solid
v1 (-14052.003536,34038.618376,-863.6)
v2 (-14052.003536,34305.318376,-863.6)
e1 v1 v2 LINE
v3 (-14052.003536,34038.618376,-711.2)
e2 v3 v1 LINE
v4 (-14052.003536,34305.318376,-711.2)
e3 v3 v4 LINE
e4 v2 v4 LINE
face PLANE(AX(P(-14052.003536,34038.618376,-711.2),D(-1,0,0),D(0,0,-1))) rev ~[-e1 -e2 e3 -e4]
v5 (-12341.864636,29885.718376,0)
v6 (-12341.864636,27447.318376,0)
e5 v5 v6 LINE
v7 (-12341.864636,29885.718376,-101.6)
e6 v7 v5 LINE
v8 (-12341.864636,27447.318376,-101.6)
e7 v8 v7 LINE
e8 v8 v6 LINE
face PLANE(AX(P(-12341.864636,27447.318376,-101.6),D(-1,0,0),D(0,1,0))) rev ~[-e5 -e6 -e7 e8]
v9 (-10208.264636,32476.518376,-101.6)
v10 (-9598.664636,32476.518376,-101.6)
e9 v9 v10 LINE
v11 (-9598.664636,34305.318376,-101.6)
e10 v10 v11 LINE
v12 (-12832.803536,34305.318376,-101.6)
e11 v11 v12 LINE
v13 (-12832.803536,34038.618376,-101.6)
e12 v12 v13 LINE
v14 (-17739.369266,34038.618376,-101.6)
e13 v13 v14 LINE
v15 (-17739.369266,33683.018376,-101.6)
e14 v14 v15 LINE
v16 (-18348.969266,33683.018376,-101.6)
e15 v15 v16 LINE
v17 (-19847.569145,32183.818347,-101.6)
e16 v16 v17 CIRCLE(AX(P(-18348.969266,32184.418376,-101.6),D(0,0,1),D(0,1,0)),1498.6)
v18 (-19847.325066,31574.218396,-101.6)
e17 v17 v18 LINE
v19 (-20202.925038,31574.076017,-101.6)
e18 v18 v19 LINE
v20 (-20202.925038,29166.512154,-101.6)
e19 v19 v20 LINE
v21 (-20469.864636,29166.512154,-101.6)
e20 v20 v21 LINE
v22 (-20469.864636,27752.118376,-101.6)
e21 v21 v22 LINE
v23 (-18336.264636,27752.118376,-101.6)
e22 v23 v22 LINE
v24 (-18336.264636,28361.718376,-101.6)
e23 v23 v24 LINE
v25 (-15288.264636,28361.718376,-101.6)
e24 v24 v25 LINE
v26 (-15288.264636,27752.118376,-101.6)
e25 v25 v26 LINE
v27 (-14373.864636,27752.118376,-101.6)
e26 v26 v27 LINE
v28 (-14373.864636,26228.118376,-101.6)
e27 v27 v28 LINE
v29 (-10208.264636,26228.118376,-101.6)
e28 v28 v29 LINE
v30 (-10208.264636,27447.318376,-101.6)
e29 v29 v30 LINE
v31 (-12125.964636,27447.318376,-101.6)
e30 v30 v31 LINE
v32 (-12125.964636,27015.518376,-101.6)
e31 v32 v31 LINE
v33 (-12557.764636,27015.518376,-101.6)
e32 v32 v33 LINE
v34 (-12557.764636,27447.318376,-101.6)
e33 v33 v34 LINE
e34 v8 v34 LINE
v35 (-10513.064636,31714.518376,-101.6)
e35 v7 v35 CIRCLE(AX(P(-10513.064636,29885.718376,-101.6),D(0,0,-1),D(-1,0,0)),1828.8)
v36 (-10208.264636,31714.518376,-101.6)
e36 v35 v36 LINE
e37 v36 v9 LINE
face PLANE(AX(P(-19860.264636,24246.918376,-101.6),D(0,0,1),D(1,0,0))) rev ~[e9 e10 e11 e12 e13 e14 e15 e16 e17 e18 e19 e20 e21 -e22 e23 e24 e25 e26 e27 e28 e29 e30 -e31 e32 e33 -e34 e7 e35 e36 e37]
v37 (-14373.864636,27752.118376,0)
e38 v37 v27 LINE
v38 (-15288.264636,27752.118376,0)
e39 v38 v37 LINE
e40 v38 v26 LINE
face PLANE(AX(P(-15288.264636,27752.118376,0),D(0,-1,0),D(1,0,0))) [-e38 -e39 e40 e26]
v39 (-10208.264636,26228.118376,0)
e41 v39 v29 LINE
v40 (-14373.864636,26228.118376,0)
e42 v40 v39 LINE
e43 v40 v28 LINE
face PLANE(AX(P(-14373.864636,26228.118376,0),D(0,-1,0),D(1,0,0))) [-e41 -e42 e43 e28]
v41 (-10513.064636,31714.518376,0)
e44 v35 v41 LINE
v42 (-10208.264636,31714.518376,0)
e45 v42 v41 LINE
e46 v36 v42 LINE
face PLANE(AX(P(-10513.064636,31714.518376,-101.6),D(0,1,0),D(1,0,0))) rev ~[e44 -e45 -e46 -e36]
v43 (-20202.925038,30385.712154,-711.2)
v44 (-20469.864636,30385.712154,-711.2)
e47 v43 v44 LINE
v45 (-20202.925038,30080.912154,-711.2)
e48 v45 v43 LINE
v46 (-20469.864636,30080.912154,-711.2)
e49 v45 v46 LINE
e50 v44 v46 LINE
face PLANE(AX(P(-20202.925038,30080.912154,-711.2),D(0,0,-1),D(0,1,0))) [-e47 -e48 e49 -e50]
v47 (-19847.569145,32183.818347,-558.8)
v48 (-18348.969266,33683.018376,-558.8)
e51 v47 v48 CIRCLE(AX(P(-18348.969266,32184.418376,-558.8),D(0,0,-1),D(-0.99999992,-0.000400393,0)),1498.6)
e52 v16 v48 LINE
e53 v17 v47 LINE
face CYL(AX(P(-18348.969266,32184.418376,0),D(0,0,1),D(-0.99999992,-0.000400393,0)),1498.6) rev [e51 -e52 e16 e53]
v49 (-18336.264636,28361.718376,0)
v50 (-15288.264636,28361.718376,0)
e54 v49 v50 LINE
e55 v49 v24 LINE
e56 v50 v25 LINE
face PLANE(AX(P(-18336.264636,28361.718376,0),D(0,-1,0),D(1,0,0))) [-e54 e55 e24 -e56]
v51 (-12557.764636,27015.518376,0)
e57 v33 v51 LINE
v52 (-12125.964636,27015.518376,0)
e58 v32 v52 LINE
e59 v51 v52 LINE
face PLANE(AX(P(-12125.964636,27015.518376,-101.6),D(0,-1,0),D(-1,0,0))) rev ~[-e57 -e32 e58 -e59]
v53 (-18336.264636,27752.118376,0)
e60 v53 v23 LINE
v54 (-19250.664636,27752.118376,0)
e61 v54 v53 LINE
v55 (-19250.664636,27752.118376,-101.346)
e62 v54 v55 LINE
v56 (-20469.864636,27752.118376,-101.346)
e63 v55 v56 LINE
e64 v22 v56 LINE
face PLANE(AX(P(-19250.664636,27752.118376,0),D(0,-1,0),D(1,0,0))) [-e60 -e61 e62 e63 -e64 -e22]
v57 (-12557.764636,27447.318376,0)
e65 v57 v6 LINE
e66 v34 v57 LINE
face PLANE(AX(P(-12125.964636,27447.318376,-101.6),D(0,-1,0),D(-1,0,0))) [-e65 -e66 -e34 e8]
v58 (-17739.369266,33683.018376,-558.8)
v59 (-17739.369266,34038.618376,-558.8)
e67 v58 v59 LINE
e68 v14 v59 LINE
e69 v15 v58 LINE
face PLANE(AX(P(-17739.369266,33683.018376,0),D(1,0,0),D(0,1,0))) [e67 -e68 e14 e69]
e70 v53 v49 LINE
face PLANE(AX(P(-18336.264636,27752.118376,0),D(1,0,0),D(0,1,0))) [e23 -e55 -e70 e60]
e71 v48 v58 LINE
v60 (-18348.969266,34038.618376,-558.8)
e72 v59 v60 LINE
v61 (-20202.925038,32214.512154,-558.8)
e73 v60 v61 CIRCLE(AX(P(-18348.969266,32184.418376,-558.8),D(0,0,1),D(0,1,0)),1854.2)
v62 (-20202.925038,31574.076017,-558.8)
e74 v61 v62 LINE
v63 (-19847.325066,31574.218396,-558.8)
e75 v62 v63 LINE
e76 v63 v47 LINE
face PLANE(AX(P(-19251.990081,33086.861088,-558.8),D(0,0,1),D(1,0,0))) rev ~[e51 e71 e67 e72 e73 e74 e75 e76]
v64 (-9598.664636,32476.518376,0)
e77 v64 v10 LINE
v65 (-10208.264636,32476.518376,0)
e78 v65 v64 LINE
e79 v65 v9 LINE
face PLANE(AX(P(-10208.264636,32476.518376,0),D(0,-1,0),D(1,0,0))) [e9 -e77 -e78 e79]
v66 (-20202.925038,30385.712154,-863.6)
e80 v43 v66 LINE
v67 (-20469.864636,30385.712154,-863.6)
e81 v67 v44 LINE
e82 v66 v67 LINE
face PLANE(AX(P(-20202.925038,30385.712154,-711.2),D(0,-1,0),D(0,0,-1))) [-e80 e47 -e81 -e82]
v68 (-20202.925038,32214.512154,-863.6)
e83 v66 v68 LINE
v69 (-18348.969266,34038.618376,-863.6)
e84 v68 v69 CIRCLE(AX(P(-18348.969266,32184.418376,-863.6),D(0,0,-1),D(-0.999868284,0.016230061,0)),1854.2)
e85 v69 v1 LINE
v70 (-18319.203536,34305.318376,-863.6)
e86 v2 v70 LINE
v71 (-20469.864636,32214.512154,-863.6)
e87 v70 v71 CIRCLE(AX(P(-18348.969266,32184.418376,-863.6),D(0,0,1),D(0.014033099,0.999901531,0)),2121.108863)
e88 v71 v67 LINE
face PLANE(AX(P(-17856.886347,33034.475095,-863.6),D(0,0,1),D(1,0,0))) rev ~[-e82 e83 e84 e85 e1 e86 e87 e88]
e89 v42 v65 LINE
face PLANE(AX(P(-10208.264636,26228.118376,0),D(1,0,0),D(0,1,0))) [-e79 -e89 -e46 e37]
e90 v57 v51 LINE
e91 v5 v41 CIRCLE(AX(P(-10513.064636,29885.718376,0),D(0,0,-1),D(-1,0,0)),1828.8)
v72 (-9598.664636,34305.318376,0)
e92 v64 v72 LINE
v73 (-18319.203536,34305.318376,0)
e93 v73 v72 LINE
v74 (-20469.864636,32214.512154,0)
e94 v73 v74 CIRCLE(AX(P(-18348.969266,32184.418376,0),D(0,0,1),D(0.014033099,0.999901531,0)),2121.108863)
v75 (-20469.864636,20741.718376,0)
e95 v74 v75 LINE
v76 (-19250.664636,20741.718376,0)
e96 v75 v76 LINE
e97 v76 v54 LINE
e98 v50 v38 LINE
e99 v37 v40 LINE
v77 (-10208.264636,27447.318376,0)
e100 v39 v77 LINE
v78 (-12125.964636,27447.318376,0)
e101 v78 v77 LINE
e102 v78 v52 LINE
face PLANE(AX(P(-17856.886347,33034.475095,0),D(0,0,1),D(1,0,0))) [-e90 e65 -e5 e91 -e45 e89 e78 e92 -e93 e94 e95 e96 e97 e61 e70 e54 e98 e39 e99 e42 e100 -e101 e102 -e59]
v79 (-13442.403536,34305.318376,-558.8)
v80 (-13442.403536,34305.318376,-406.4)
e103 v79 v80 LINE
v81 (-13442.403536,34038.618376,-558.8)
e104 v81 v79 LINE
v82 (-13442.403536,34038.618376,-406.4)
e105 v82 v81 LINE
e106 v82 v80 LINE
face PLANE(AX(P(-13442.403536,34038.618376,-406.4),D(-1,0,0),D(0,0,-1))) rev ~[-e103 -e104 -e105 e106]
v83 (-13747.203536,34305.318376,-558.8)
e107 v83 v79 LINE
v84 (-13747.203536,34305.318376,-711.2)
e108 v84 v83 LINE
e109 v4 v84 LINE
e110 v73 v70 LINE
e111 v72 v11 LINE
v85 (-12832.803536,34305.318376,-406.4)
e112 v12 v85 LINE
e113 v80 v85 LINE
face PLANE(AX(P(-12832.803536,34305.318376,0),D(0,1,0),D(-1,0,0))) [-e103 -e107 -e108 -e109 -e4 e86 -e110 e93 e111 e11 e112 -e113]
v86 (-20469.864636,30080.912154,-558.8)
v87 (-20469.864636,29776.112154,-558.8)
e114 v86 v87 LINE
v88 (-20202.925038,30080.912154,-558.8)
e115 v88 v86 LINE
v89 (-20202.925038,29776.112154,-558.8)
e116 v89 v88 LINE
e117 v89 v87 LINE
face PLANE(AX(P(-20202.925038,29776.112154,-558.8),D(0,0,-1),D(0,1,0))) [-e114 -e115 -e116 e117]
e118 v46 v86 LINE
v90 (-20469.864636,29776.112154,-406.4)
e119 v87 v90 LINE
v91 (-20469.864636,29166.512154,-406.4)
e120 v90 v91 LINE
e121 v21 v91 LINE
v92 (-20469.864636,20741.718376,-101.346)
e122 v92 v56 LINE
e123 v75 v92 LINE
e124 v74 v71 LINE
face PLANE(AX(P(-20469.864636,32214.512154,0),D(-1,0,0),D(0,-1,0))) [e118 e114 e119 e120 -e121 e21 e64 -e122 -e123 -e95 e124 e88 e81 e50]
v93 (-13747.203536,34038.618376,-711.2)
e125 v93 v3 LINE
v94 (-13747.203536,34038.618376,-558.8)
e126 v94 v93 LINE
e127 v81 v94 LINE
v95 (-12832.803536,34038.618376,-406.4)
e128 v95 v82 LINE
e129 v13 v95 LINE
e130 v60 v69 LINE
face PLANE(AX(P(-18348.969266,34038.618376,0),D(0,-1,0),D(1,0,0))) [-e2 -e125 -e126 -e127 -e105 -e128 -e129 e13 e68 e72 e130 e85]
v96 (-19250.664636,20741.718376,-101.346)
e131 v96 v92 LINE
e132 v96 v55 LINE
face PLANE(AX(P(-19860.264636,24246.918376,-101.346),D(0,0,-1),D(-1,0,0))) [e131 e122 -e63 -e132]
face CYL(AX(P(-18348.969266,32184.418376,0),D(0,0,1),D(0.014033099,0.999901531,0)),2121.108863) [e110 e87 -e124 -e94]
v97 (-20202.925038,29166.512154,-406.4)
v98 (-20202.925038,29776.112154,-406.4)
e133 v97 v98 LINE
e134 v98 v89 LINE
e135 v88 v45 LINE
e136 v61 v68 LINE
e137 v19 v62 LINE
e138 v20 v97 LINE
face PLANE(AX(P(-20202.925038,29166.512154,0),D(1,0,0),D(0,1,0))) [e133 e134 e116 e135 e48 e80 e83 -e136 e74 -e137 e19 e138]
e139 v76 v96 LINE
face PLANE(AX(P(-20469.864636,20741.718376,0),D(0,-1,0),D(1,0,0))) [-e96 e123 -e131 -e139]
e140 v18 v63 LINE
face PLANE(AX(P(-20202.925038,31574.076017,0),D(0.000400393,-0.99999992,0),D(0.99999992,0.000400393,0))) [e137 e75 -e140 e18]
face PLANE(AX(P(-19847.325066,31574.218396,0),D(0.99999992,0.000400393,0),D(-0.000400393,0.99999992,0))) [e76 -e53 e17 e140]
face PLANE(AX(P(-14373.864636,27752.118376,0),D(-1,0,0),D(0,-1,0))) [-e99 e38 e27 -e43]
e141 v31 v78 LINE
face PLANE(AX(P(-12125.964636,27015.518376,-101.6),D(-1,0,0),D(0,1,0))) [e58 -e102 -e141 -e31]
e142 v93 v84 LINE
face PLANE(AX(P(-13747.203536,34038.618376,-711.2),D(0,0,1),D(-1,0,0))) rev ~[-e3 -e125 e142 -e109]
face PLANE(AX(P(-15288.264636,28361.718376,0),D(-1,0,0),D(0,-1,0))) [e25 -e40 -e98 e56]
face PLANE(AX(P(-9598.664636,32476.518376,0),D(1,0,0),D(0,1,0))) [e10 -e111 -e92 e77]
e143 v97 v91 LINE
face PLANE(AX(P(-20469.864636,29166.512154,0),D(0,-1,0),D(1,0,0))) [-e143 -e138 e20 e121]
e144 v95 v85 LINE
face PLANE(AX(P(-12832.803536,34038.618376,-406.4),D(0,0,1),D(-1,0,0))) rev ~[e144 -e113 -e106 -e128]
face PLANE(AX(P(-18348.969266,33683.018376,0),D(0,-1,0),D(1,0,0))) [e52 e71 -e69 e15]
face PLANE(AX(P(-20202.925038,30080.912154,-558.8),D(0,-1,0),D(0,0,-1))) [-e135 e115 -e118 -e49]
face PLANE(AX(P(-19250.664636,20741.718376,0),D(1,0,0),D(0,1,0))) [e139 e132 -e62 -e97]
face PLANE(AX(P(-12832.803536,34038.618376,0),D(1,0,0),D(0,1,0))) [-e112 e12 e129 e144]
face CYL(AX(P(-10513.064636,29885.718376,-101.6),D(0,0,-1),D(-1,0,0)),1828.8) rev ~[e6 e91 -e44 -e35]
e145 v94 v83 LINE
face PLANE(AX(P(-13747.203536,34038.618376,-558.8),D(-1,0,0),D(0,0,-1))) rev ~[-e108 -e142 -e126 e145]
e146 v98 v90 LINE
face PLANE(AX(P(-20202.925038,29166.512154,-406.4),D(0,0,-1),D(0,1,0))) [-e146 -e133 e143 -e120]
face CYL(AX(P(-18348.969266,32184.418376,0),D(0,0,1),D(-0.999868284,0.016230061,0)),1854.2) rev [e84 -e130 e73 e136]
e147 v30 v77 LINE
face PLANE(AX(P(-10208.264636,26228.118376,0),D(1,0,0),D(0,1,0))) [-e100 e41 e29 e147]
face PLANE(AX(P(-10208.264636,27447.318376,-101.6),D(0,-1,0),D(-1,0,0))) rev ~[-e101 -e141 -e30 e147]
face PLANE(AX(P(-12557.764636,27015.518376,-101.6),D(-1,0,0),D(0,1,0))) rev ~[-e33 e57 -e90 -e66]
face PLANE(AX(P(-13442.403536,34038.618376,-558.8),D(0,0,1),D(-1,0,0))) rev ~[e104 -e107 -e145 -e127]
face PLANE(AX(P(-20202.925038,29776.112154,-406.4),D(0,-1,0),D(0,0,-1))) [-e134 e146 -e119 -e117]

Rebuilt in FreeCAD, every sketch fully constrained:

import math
import FreeCAD as App
import Part
import Sketcher
Q = App.Units.Quantity

doc = App.newDocument("Part")
params = doc.addObject("Spreadsheet::Sheet", "Params")
for row, (alias, value) in enumerate([
    ("sketch1_radius", "59 in"),
    ("sketch1_width", "48 in"),
    ("sketch1_width2", "36 in"),
    ("sketch1_width3", "120 in"),
    ("sketch1_width4", "164 in"),
    ("pad1_length", "4 in"),
    ("sketch2_radius", "59 in"),
    ("sketch2_radius2", "73 in"),
    ("sketch2_width", "24 in"),
    ("sketch2_length", "14 in"),
    ("sketch2_length2", "24 in"),
    ("pad2_length", "22 in"),
    ("sketch3_radius", "73 in"),
    ("sketch3_width", "216 in"),
    ("sketch3_height", "120 in"),
    ("sketch3_height2", "10.5 in"),
    ("pad3_length", "34 in"),
    ("sketch4_width", "12 in"),
    ("sketch4_width2", "48 in"),
    ("sketch4_height", "6 in"),
    ("sketch5_width", "48 in"),
    ("sketch5_width2", "12 in"),
    ("sketch5_height", "18 in"),
    ("sketch6_radius", "72 in"),
    ("sketch6_width", "84 in"),
    ("sketch6_height", "96 in"),
    ("sketch7_width", "17 in"),
    ("sketch8_width", "48 in"),
    ("sketch8_height", "276 in"),
    ("pocket5_length", "0.01 in"),
], start=1):
    params.set(f"A{row}", alias)
    params.set(f"B{row}", "=" + value)
    params.setAlias(f"B{row}", alias)

body = doc.addObject("PartDesign::Body", "Body")

# Sketch on XY plane
sketch1 = body.newObject("Sketcher::SketchObject", "Sketch")
sketch1.AttachmentSupport = (doc.getObject("XY_Plane"), [""])
sketch1.MapMode = "FlatFace"
sketch1.addGeometry(Part.LineSegment(App.Vector(-20470, 20742, 0), App.Vector(-19251, 20742, 0)), False)
sketch1.addGeometry(Part.LineSegment(App.Vector(-19251, 20742, 0), App.Vector(-19251, 27752, 0)), False)
sketch1.addGeometry(Part.LineSegment(App.Vector(-19251, 27752, 0), App.Vector(-18336, 27752, 0)), False)
sketch1.addGeometry(Part.LineSegment(App.Vector(-18336, 27752, 0), App.Vector(-18336, 28362, 0)), False)
sketch1.addGeometry(Part.LineSegment(App.Vector(-18336, 28362, 0), App.Vector(-15288, 28362, 0)), False)
sketch1.addGeometry(Part.LineSegment(App.Vector(-15288, 28362, 0), App.Vector(-15288, 27752, 0)), False)
sketch1.addGeometry(Part.LineSegment(App.Vector(-15288, 27752, 0), App.Vector(-14374, 27752, 0)), False)
sketch1.addGeometry(Part.LineSegment(App.Vector(-14374, 27752, 0), App.Vector(-14374, 26228, 0)), False)
sketch1.addGeometry(Part.LineSegment(App.Vector(-14374, 26228, 0), App.Vector(-10208, 26228, 0)), False)
sketch1.addGeometry(Part.LineSegment(App.Vector(-10208, 26228, 0), App.Vector(-10208, 32477, 0)), False)
sketch1.addGeometry(Part.LineSegment(App.Vector(-10208, 32477, 0), App.Vector(-9599, 32477, 0)), False)
sketch1.addGeometry(Part.LineSegment(App.Vector(-9599, 32477, 0), App.Vector(-9599, 34305, 0)), False)
sketch1.addGeometry(Part.LineSegment(App.Vector(-9599, 34305, 0), App.Vector(-12833, 34305, 0)), False)
sketch1.addGeometry(Part.LineSegment(App.Vector(-12833, 34305, 0), App.Vector(-12833, 34039, 0)), False)
sketch1.addGeometry(Part.LineSegment(App.Vector(-12833, 34039, 0), App.Vector(-17739, 34039, 0)), False)
sketch1.addGeometry(Part.LineSegment(App.Vector(-17739, 34039, 0), App.Vector(-17739, 33683, 0)), False)
sketch1.addGeometry(Part.LineSegment(App.Vector(-17739, 33683, 0), App.Vector(-18349, 33683, 0)), False)
sketch1.addGeometry(Part.ArcOfCircle(Part.Circle(App.Vector(-18349, 32184, 0), App.Vector(0, 0, 1), 1499), math.radians(90), math.radians(180)), False)
sketch1.addGeometry(Part.LineSegment(App.Vector(-19848, 32184, 0), App.Vector(-19847, 31574, 0)), False)
sketch1.addGeometry(Part.LineSegment(App.Vector(-19847, 31574, 0), App.Vector(-20203, 31574, 0)), False)
sketch1.addGeometry(Part.LineSegment(App.Vector(-20203, 31574, 0), App.Vector(-20203, 29167, 0)), False)
sketch1.addGeometry(Part.LineSegment(App.Vector(-20203, 29167, 0), App.Vector(-20470, 29167, 0)), False)
sketch1.addGeometry(Part.LineSegment(App.Vector(-20470, 29167, 0), App.Vector(-20470, 20742, 0)), False)
sketch1.addConstraint(Sketcher.Constraint("Coincident", 0, 2, 1, 1))
sketch1.addConstraint(Sketcher.Constraint("Coincident", 1, 2, 2, 1))
sketch1.addConstraint(Sketcher.Constraint("Coincident", 2, 2, 3, 1))
sketch1.addConstraint(Sketcher.Constraint("Coincident", 3, 2, 4, 1))
sketch1.addConstraint(Sketcher.Constraint("Coincident", 4, 2, 5, 1))
sketch1.addConstraint(Sketcher.Constraint("Coincident", 5, 2, 6, 1))
sketch1.addConstraint(Sketcher.Constraint("Coincident", 6, 2, 7, 1))
sketch1.addConstraint(Sketcher.Constraint("Coincident", 7, 2, 8, 1))
sketch1.addConstraint(Sketcher.Constraint("Coincident", 8, 2, 9, 1))
sketch1.addConstraint(Sketcher.Constraint("Coincident", 9, 2, 10, 1))
sketch1.addConstraint(Sketcher.Constraint("Coincident", 10, 2, 11, 1))
sketch1.addConstraint(Sketcher.Constraint("Coincident", 11, 2, 12, 1))
sketch1.addConstraint(Sketcher.Constraint("Coincident", 12, 2, 13, 1))
sketch1.addConstraint(Sketcher.Constraint("Coincident", 13, 2, 14, 1))
sketch1.addConstraint(Sketcher.Constraint("Coincident", 14, 2, 15, 1))
sketch1.addConstraint(Sketcher.Constraint("Coincident", 15, 2, 16, 1))
sketch1.addConstraint(Sketcher.Constraint("Tangent", 16, 2, 17, 1))
sketch1.addConstraint(Sketcher.Constraint("Tangent", 17, 2, 18, 1))
sketch1.addConstraint(Sketcher.Constraint("Coincident", 18, 2, 19, 1))
sketch1.addConstraint(Sketcher.Constraint("Coincident", 19, 2, 20, 1))
sketch1.addConstraint(Sketcher.Constraint("Coincident", 20, 2, 21, 1))
sketch1.addConstraint(Sketcher.Constraint("Coincident", 21, 2, 22, 1))
sketch1.addConstraint(Sketcher.Constraint("Coincident", 22, 2, 0, 1))
sketch1.addConstraint(Sketcher.Constraint("Horizontal", 0))
sketch1.addConstraint(Sketcher.Constraint("Vertical", 1))
sketch1.addConstraint(Sketcher.Constraint("Horizontal", 2))
sketch1.addConstraint(Sketcher.Constraint("Vertical", 3))
sketch1.addConstraint(Sketcher.Constraint("Horizontal", 4))
sketch1.addConstraint(Sketcher.Constraint("Vertical", 5))
sketch1.addConstraint(Sketcher.Constraint("Horizontal", 6))
sketch1.addConstraint(Sketcher.Constraint("Vertical", 7))
sketch1.addConstraint(Sketcher.Constraint("Horizontal", 8))
sketch1.addConstraint(Sketcher.Constraint("Vertical", 9))
sketch1.addConstraint(Sketcher.Constraint("Horizontal", 10))
sketch1.addConstraint(Sketcher.Constraint("Vertical", 11))
sketch1.addConstraint(Sketcher.Constraint("Horizontal", 12))
sketch1.addConstraint(Sketcher.Constraint("Vertical", 13))
sketch1.addConstraint(Sketcher.Constraint("Horizontal", 14))
sketch1.addConstraint(Sketcher.Constraint("Vertical", 15))
sketch1.addConstraint(Sketcher.Constraint("Horizontal", 16))
sketch1.addConstraint(Sketcher.Constraint("Vertical", 20))
sketch1.addConstraint(Sketcher.Constraint("Horizontal", 21))
sketch1.addConstraint(Sketcher.Constraint("Vertical", 22))
sketch1.addConstraint(Sketcher.Constraint("Perpendicular", 18, 19))
sketch1.addConstraint(Sketcher.Constraint("Horizontal", 2, 2, 5, 2))
sketch1.addConstraint(Sketcher.Constraint("Equal", 2, 6))
sketch1.addConstraint(Sketcher.Constraint("Equal", 10, 16))
sketch1.addConstraint(Sketcher.Constraint("Equal", 16, 3))
sketch1.addConstraint(Sketcher.Constraint("Radius", 17, Q("59 in")))
sketch1.addConstraint(Sketcher.Constraint("DistanceX", 0, 1, 0, 2, Q("48 in")))
sketch1.addConstraint(Sketcher.Constraint("DistanceX", 2, 1, 2, 2, Q("36 in")))
sketch1.addConstraint(Sketcher.Constraint("DistanceX", 4, 1, 4, 2, Q("120 in")))
sketch1.addConstraint(Sketcher.Constraint("DistanceX", 8, 1, 8, 2, Q("164 in")))
sketch1.addConstraint(Sketcher.Constraint("DistanceX", 10, 1, 10, 2, Q("24 in")))
sketch1.addConstraint(Sketcher.Constraint("DistanceY", 1, 1, 1, 2, Q("276 in")))
sketch1.addConstraint(Sketcher.Constraint("DistanceY", 7, 2, 7, 1, Q("60 in")))
sketch1.addConstraint(Sketcher.Constraint("DistanceY", 9, 1, 9, 2, Q("246 in")))
sketch1.addConstraint(Sketcher.Constraint("DistanceY", 11, 1, 11, 2, Q("72 in")))
sketch1.addConstraint(Sketcher.Constraint("DistanceY", 15, 2, 15, 1, Q("14 in")))
sketch1.addConstraint(Sketcher.Constraint("Distance", 18, Q("24 in")))
sketch1.addConstraint(Sketcher.Constraint("Distance", 19, Q("14 in")))
sketch1.addConstraint(Sketcher.Constraint("DistanceY", 13, 2, 13, 1, Q("10.5 in")))
sketch1.addConstraint(Sketcher.Constraint("DistanceX", 12, 2, 12, 1, Q("3234.138899 mm")))
sketch1.addConstraint(Sketcher.Constraint("DistanceX", 21, 2, 21, 1, Q("266.939599 mm")))
sketch1.addConstraint(Sketcher.Constraint("DistanceX", 14, 2, 14, 1, Q("4906.56573 mm")))
sketch1.addConstraint(Sketcher.Constraint("DistanceY", 22, 2, 22, 1, Q("8424.793779 mm")))
sketch1.addConstraint(Sketcher.Constraint("DistanceX", 17, 3, -1, 1, Q("18348.969266 mm")))
sketch1.addConstraint(Sketcher.Constraint("DistanceY", -1, 1, 17, 3, Q("32184.418376 mm")))
sketch1.setExpression("Constraints[48]", "Params.sketch1_radius")
sketch1.setExpression("Constraints[49]", "Params.sketch1_width")
sketch1.setExpression("Constraints[50]", "Params.sketch1_width2")
sketch1.setExpression("Constraints[51]", "Params.sketch1_width3")
sketch1.setExpression("Constraints[52]", "Params.sketch1_width4")
pad1 = body.newObject("PartDesign::Pad", "Pad")
pad1.Profile = sketch1
pad1.setExpression("Length", "Params.pad1_length")
pad1.Reversed = True

# Sketch on XY plane
sketch2 = body.newObject("Sketcher::SketchObject", "Sketch001")
sketch2.AttachmentSupport = (doc.getObject("XY_Plane"), [""])
sketch2.MapMode = "FlatFace"
sketch2.addGeometry(Part.LineSegment(App.Vector(-20202.925038, 32214.512154, 0), App.Vector(-20202.925038, 31574.076017, 0)), False)
sketch2.addGeometry(Part.LineSegment(App.Vector(-20202.925038, 31574.076017, 0), App.Vector(-19847.325066, 31574.218396, 0)), False)
sketch2.addGeometry(Part.LineSegment(App.Vector(-19847.325066, 31574.218396, 0), App.Vector(-19847.569145, 32183.818347, 0)), False)
sketch2.addGeometry(Part.ArcOfCircle(Part.Circle(App.Vector(-18348.969266, 32184.418376, 0), App.Vector(0, 0, 1), 1498.6), math.radians(90), math.radians(180.022941)), False)
sketch2.addGeometry(Part.LineSegment(App.Vector(-18348.969266, 33683.018376, 0), App.Vector(-17739.369266, 33683.018376, 0)), False)
sketch2.addGeometry(Part.LineSegment(App.Vector(-17739.369266, 33683.018376, 0), App.Vector(-17739.369266, 34038.618376, 0)), False)
sketch2.addGeometry(Part.LineSegment(App.Vector(-17739.369266, 34038.618376, 0), App.Vector(-18348.969266, 34038.618376, 0)), False)
sketch2.addGeometry(Part.ArcOfCircle(Part.Circle(App.Vector(-18348.969266, 32184.418376, 0), App.Vector(0, 0, 1), 1854.2), math.radians(90), math.radians(179.070045)), False)
sketch2.addConstraint(Sketcher.Constraint("Coincident", 0, 2, 1, 1))
sketch2.addConstraint(Sketcher.Constraint("Coincident", 1, 2, 2, 1))
sketch2.addConstraint(Sketcher.Constraint("Tangent", 2, 2, 3, 2))
sketch2.addConstraint(Sketcher.Constraint("Tangent", 3, 1, 4, 1))
sketch2.addConstraint(Sketcher.Constraint("Coincident", 4, 2, 5, 1))
sketch2.addConstraint(Sketcher.Constraint("Coincident", 5, 2, 6, 1))
sketch2.addConstraint(Sketcher.Constraint("Coincident", 6, 2, 7, 1))
sketch2.addConstraint(Sketcher.Constraint("Coincident", 7, 2, 0, 1))
sketch2.addConstraint(Sketcher.Constraint("Vertical", 0))
sketch2.addConstraint(Sketcher.Constraint("Horizontal", 4))
sketch2.addConstraint(Sketcher.Constraint("Vertical", 5))
sketch2.addConstraint(Sketcher.Constraint("Horizontal", 6))
sketch2.addConstraint(Sketcher.Constraint("Coincident", 7, 3, 3, 3))
sketch2.addConstraint(Sketcher.Constraint("Perpendicular", 1, 2))
sketch2.addConstraint(Sketcher.Constraint("Equal", 4, 6))
sketch2.addConstraint(Sketcher.Constraint("Radius", 3, Q("59 in")))
sketch2.addConstraint(Sketcher.Constraint("Radius", 7, Q("73 in")))
sketch2.addConstraint(Sketcher.Constraint("DistanceX", 4, 1, 4, 2, Q("24 in")))
sketch2.addConstraint(Sketcher.Constraint("Distance", 1, Q("14 in")))
sketch2.addConstraint(Sketcher.Constraint("Distance", 2, Q("24 in")))
sketch2.addConstraint(Sketcher.Constraint("DistanceX", 1, 2, 7, 3, Q("1498.3558 mm")))
sketch2.addConstraint(Sketcher.Constraint("DistanceX", 3, 3, -1, 1, Q("18348.969266 mm")))
sketch2.addConstraint(Sketcher.Constraint("DistanceY", -1, 1, 3, 3, Q("32184.418376 mm")))
sketch2.setExpression("Constraints[15]", "Params.sketch2_radius")
sketch2.setExpression("Constraints[16]", "Params.sketch2_radius2")
sketch2.setExpression("Constraints[17]", "Params.sketch2_width")
sketch2.setExpression("Constraints[18]", "Params.sketch2_length")
sketch2.setExpression("Constraints[19]", "Params.sketch2_length2")
pad2 = body.newObject("PartDesign::Pad", "Pad001")
pad2.Profile = sketch2
pad2.setExpression("Length", "Params.pad2_length")
pad2.Reversed = True

# Sketch on XY plane
sketch3 = body.newObject("Sketcher::SketchObject", "Sketch002")
sketch3.AttachmentSupport = (doc.getObject("XY_Plane"), [""])
sketch3.MapMode = "FlatFace"
sketch3.addGeometry(Part.LineSegment(App.Vector(-12832.803536, 34305.318376, 0), App.Vector(-18319.203536, 34305.318376, 0)), False)
sketch3.addGeometry(Part.ArcOfCircle(Part.Circle(App.Vector(-18348.969266, 32184.418376, 0), App.Vector(0, 0, 1), 2121.108863), math.radians(89.195936), math.radians(179.187074)), False)
sketch3.addGeometry(Part.LineSegment(App.Vector(-20469.864636, 32214.512154, 0), App.Vector(-20469.864636, 29166.512154, 0)), False)
sketch3.addGeometry(Part.LineSegment(App.Vector(-20469.864636, 29166.512154, 0), App.Vector(-20202.925038, 29166.512154, 0)), False)
sketch3.addGeometry(Part.LineSegment(App.Vector(-20202.925038, 29166.512154, 0), App.Vector(-20202.925038, 32214.512154, 0)), False)
sketch3.addGeometry(Part.ArcOfCircle(Part.Circle(App.Vector(-18348.969266, 32184.418376, 0), App.Vector(0, 0, 1), 1854.2), math.radians(90), math.radians(179.070045)), False)
sketch3.addGeometry(Part.LineSegment(App.Vector(-18348.969266, 34038.618376, 0), App.Vector(-12832.803536, 34038.618376, 0)), False)
sketch3.addGeometry(Part.LineSegment(App.Vector(-12832.803536, 34038.618376, 0), App.Vector(-12832.803536, 34305.318376, 0)), False)
sketch3.addConstraint(Sketcher.Constraint("Coincident", 0, 2, 1, 1))
sketch3.addConstraint(Sketcher.Constraint("Coincident", 1, 2, 2, 1))
sketch3.addConstraint(Sketcher.Constraint("Coincident", 2, 2, 3, 1))
sketch3.addConstraint(Sketcher.Constraint("Coincident", 3, 2, 4, 1))
sketch3.addConstraint(Sketcher.Constraint("Coincident", 4, 2, 5, 2))
sketch3.addConstraint(Sketcher.Constraint("Coincident", 5, 1, 6, 1))
sketch3.addConstraint(Sketcher.Constraint("Coincident", 6, 2, 7, 1))
sketch3.addConstraint(Sketcher.Constraint("Coincident", 7, 2, 0, 1))
sketch3.addConstraint(Sketcher.Constraint("Horizontal", 0))
sketch3.addConstraint(Sketcher.Constraint("Vertical", 2))
sketch3.addConstraint(Sketcher.Constraint("Horizontal", 3))
sketch3.addConstraint(Sketcher.Constraint("Vertical", 4))
sketch3.addConstraint(Sketcher.Constraint("Horizontal", 6))
sketch3.addConstraint(Sketcher.Constraint("Vertical", 7))
sketch3.addConstraint(Sketcher.Constraint("Coincident", 5, 3, 1, 3))
sketch3.addConstraint(Sketcher.Constraint("Equal", 2, 4))
sketch3.addConstraint(Sketcher.Constraint("Radius", 5, Q("73 in")))
sketch3.addConstraint(Sketcher.Constraint("DistanceX", 0, 2, 0, 1, Q("216 in")))
sketch3.addConstraint(Sketcher.Constraint("DistanceY", 2, 2, 2, 1, Q("120 in")))
sketch3.addConstraint(Sketcher.Constraint("DistanceY", 7, 1, 7, 2, Q("10.5 in")))
sketch3.addConstraint(Sketcher.Constraint("DistanceX", 3, 1, 3, 2, Q("266.939599 mm")))
sketch3.addConstraint(Sketcher.Constraint("DistanceX", 6, 1, 6, 2, Q("5516.16573 mm")))
sketch3.addConstraint(Sketcher.Constraint("DistanceX", 1, 2, 0, 2, Q("2150.661101 mm")))
sketch3.addConstraint(Sketcher.Constraint("DistanceX", 1, 3, -1, 1, Q("18348.969266 mm")))
sketch3.addConstraint(Sketcher.Constraint("DistanceY", -1, 1, 1, 3, Q("32184.418376 mm")))
sketch3.setExpression("Constraints[16]", "Params.sketch3_radius")
sketch3.setExpression("Constraints[17]", "Params.sketch3_width")
sketch3.setExpression("Constraints[18]", "Params.sketch3_height")
sketch3.setExpression("Constraints[19]", "Params.sketch3_height2")
pad3 = body.newObject("PartDesign::Pad", "Pad002")
pad3.Profile = sketch3
pad3.setExpression("Length", "Params.pad3_length")
pad3.Reversed = True

# Sketch on XZ plane
sketch4 = body.newObject("Sketcher::SketchObject", "Sketch003")
sketch4.AttachmentSupport = (doc.getObject("XZ_Plane"), [""])
sketch4.MapMode = "FlatFace"
sketch4.AttachmentOffset = App.Placement(App.Vector(0, 0, -34038.618376), App.Rotation())
sketch4.addGeometry(Part.LineSegment(App.Vector(-13747, -559, 0), App.Vector(-13747, -711, 0)), False)
sketch4.addGeometry(Part.LineSegment(App.Vector(-13747, -711, 0), App.Vector(-14052, -711, 0)), False)
sketch4.addGeometry(Part.LineSegment(App.Vector(-14052, -711, 0), App.Vector(-14052, -864, 0)), False)
sketch4.addGeometry(Part.LineSegment(App.Vector(-14052, -864, 0), App.Vector(-12833, -864, 0)), False)
sketch4.addGeometry(Part.LineSegment(App.Vector(-12833, -864, 0), App.Vector(-12833, -406, 0)), False)
sketch4.addGeometry(Part.LineSegment(App.Vector(-12833, -406, 0), App.Vector(-13442, -406, 0)), False)
sketch4.addGeometry(Part.LineSegment(App.Vector(-13442, -406, 0), App.Vector(-13442, -559, 0)), False)
sketch4.addGeometry(Part.LineSegment(App.Vector(-13442, -559, 0), App.Vector(-13747, -559, 0)), False)
sketch4.addConstraint(Sketcher.Constraint("Coincident", 0, 2, 1, 1))
sketch4.addConstraint(Sketcher.Constraint("Coincident", 1, 2, 2, 1))
sketch4.addConstraint(Sketcher.Constraint("Coincident", 2, 2, 3, 1))
sketch4.addConstraint(Sketcher.Constraint("Coincident", 3, 2, 4, 1))
sketch4.addConstraint(Sketcher.Constraint("Coincident", 4, 2, 5, 1))
sketch4.addConstraint(Sketcher.Constraint("Coincident", 5, 2, 6, 1))
sketch4.addConstraint(Sketcher.Constraint("Coincident", 6, 2, 7, 1))
sketch4.addConstraint(Sketcher.Constraint("Coincident", 7, 2, 0, 1))
sketch4.addConstraint(Sketcher.Constraint("Vertical", 0))
sketch4.addConstraint(Sketcher.Constraint("Horizontal", 1))
sketch4.addConstraint(Sketcher.Constraint("Vertical", 2))
sketch4.addConstraint(Sketcher.Constraint("Horizontal", 3))
sketch4.addConstraint(Sketcher.Constraint("Vertical", 4))
sketch4.addConstraint(Sketcher.Constraint("Horizontal", 5))
sketch4.addConstraint(Sketcher.Constraint("Vertical", 6))
sketch4.addConstraint(Sketcher.Constraint("Horizontal", 7))
sketch4.addConstraint(Sketcher.Constraint("Equal", 1, 7))
sketch4.addConstraint(Sketcher.Constraint("Equal", 0, 2))
sketch4.addConstraint(Sketcher.Constraint("Equal", 2, 6))
sketch4.addConstraint(Sketcher.Constraint("DistanceX", 1, 2, 1, 1, Q("12 in")))
sketch4.addConstraint(Sketcher.Constraint("DistanceX", 3, 1, 3, 2, Q("48 in")))
sketch4.addConstraint(Sketcher.Constraint("DistanceY", 0, 2, 0, 1, Q("6 in")))
sketch4.addConstraint(Sketcher.Constraint("DistanceY", 0, 2, -1, 1, Q("28 in")))
sketch4.addConstraint(Sketcher.Constraint("DistanceX", 0, 2, -1, 1, Q("13747.203536 mm")))
sketch4.setExpression("Constraints[19]", "Params.sketch4_width")
sketch4.setExpression("Constraints[20]", "Params.sketch4_width2")
sketch4.setExpression("Constraints[21]", "Params.sketch4_height")
pocket1 = body.newObject("PartDesign::Pocket", "Pocket")
pocket1.Profile = sketch4
pocket1.Type = "ThroughAll"

# Sketch on YZ plane
sketch5 = body.newObject("Sketcher::SketchObject", "Sketch004")
sketch5.AttachmentSupport = (doc.getObject("YZ_Plane"), [""])
sketch5.MapMode = "FlatFace"
sketch5.AttachmentOffset = App.Placement(App.Vector(0, 0, -20202.925038), App.Rotation())
sketch5.addGeometry(Part.LineSegment(App.Vector(29167, -406, 0), App.Vector(29167, -864, 0)), False)
sketch5.addGeometry(Part.LineSegment(App.Vector(29167, -864, 0), App.Vector(30386, -864, 0)), False)
sketch5.addGeometry(Part.LineSegment(App.Vector(30386, -864, 0), App.Vector(30386, -711, 0)), False)
sketch5.addGeometry(Part.LineSegment(App.Vector(30386, -711, 0), App.Vector(30081, -711, 0)), False)
sketch5.addGeometry(Part.LineSegment(App.Vector(30081, -711, 0), App.Vector(30081, -559, 0)), False)
sketch5.addGeometry(Part.LineSegment(App.Vector(30081, -559, 0), App.Vector(29776, -559, 0)), False)
sketch5.addGeometry(Part.LineSegment(App.Vector(29776, -559, 0), App.Vector(29776, -406, 0)), False)
sketch5.addGeometry(Part.LineSegment(App.Vector(29776, -406, 0), App.Vector(29167, -406, 0)), False)
sketch5.addConstraint(Sketcher.Constraint("Coincident", 0, 2, 1, 1))
sketch5.addConstraint(Sketcher.Constraint("Coincident", 1, 2, 2, 1))
sketch5.addConstraint(Sketcher.Constraint("Coincident", 2, 2, 3, 1))
sketch5.addConstraint(Sketcher.Constraint("Coincident", 3, 2, 4, 1))
sketch5.addConstraint(Sketcher.Constraint("Coincident", 4, 2, 5, 1))
sketch5.addConstraint(Sketcher.Constraint("Coincident", 5, 2, 6, 1))
sketch5.addConstraint(Sketcher.Constraint("Coincident", 6, 2, 7, 1))
sketch5.addConstraint(Sketcher.Constraint("Coincident", 7, 2, 0, 1))
sketch5.addConstraint(Sketcher.Constraint("Vertical", 0))
sketch5.addConstraint(Sketcher.Constraint("Horizontal", 1))
sketch5.addConstraint(Sketcher.Constraint("Vertical", 2))
sketch5.addConstraint(Sketcher.Constraint("Horizontal", 3))
sketch5.addConstraint(Sketcher.Constraint("Vertical", 4))
sketch5.addConstraint(Sketcher.Constraint("Horizontal", 5))
sketch5.addConstraint(Sketcher.Constraint("Vertical", 6))
sketch5.addConstraint(Sketcher.Constraint("Horizontal", 7))
sketch5.addConstraint(Sketcher.Constraint("Equal", 3, 5))
sketch5.addConstraint(Sketcher.Constraint("Equal", 2, 4))
sketch5.addConstraint(Sketcher.Constraint("Equal", 4, 6))
sketch5.addConstraint(Sketcher.Constraint("DistanceX", 1, 1, 1, 2, Q("48 in")))
sketch5.addConstraint(Sketcher.Constraint("DistanceX", 3, 2, 3, 1, Q("12 in")))
sketch5.addConstraint(Sketcher.Constraint("DistanceY", 0, 2, 0, 1, Q("18 in")))
sketch5.addConstraint(Sketcher.Constraint("DistanceY", 0, 2, -1, 1, Q("34 in")))
sketch5.addConstraint(Sketcher.Constraint("DistanceX", -1, 1, 0, 2, Q("29166.512154 mm")))
sketch5.setExpression("Constraints[19]", "Params.sketch5_width")
sketch5.setExpression("Constraints[20]", "Params.sketch5_width2")
sketch5.setExpression("Constraints[21]", "Params.sketch5_height")
pocket2 = body.newObject("PartDesign::Pocket", "Pocket001")
pocket2.Profile = sketch5
pocket2.Type = "ThroughAll"

# Sketch on XY plane
sketch6 = body.newObject("Sketcher::SketchObject", "Sketch005")
sketch6.AttachmentSupport = (doc.getObject("XY_Plane"), [""])
sketch6.MapMode = "FlatFace"
sketch6.AttachmentOffset = App.Placement(App.Vector(0, 0, -4 * 25.4), App.Rotation())
sketch6.addGeometry(Part.LineSegment(App.Vector(-10208, 27447, 0), App.Vector(-12342, 27447, 0)), False)
sketch6.addGeometry(Part.LineSegment(App.Vector(-12342, 27447, 0), App.Vector(-12342, 29886, 0)), False)
sketch6.addGeometry(Part.ArcOfCircle(Part.Circle(App.Vector(-10513, 29886, 0), App.Vector(0, 0, 1), 1829), math.radians(90), math.radians(180)), False)
sketch6.addGeometry(Part.LineSegment(App.Vector(-10513, 31715, 0), App.Vector(-10208, 31715, 0)), False)
sketch6.addGeometry(Part.LineSegment(App.Vector(-10208, 31715, 0), App.Vector(-10208, 27447, 0)), False)
sketch6.addConstraint(Sketcher.Constraint("Coincident", 0, 2, 1, 1))
sketch6.addConstraint(Sketcher.Constraint("Coincident", 1, 2, 2, 2))
sketch6.addConstraint(Sketcher.Constraint("Tangent", 2, 1, 3, 1))
sketch6.addConstraint(Sketcher.Constraint("Coincident", 3, 2, 4, 1))
sketch6.addConstraint(Sketcher.Constraint("Coincident", 4, 2, 0, 1))
sketch6.addConstraint(Sketcher.Constraint("Horizontal", 0))
sketch6.addConstraint(Sketcher.Constraint("Vertical", 1))
sketch6.addConstraint(Sketcher.Constraint("Horizontal", 3))
sketch6.addConstraint(Sketcher.Constraint("Vertical", 4))
sketch6.addConstraint(Sketcher.Constraint("Horizontal", 2, 3, 1, 2))
sketch6.addConstraint(Sketcher.Constraint("Radius", 2, Q("72 in")))
sketch6.addConstraint(Sketcher.Constraint("DistanceX", 0, 2, 0, 1, Q("84 in")))
sketch6.addConstraint(Sketcher.Constraint("DistanceY", 1, 1, 1, 2, Q("96 in")))
sketch6.addConstraint(Sketcher.Constraint("DistanceX", 2, 3, -1, 1, Q("10513.064636 mm")))
sketch6.addConstraint(Sketcher.Constraint("DistanceY", -1, 1, 2, 3, Q("29885.718376 mm")))
sketch6.setExpression("Constraints[10]", "Params.sketch6_radius")
sketch6.setExpression("Constraints[11]", "Params.sketch6_width")
sketch6.setExpression("Constraints[12]", "Params.sketch6_height")
pocket3 = body.newObject("PartDesign::Pocket", "Pocket002")
pocket3.Profile = sketch6
pocket3.Type = "ThroughAll"
pocket3.Reversed = True

# Sketch on XY plane
sketch7 = body.newObject("Sketcher::SketchObject", "Sketch006")
sketch7.AttachmentSupport = (doc.getObject("XY_Plane"), [""])
sketch7.MapMode = "FlatFace"
sketch7.AttachmentOffset = App.Placement(App.Vector(0, 0, -4 * 25.4), App.Rotation())
sketch7.addGeometry(Part.LineSegment(App.Vector(-12126, 27447, 0), App.Vector(-12126, 27016, 0)), False)
sketch7.addGeometry(Part.LineSegment(App.Vector(-12126, 27016, 0), App.Vector(-12558, 27016, 0)), False)
sketch7.addGeometry(Part.LineSegment(App.Vector(-12558, 27016, 0), App.Vector(-12558, 27447, 0)), False)
sketch7.addGeometry(Part.LineSegment(App.Vector(-12558, 27447, 0), App.Vector(-12126, 27447, 0)), False)
sketch7.addConstraint(Sketcher.Constraint("Coincident", 0, 2, 1, 1))
sketch7.addConstraint(Sketcher.Constraint("Coincident", 1, 2, 2, 1))
sketch7.addConstraint(Sketcher.Constraint("Coincident", 2, 2, 3, 1))
sketch7.addConstraint(Sketcher.Constraint("Coincident", 3, 2, 0, 1))
sketch7.addConstraint(Sketcher.Constraint("Vertical", 0))
sketch7.addConstraint(Sketcher.Constraint("Horizontal", 1))
sketch7.addConstraint(Sketcher.Constraint("Vertical", 2))
sketch7.addConstraint(Sketcher.Constraint("Horizontal", 3))
sketch7.addConstraint(Sketcher.Constraint("Equal", 3, 0))
sketch7.addConstraint(Sketcher.Constraint("DistanceX", 1, 2, 1, 1, Q("17 in")))
sketch7.addConstraint(Sketcher.Constraint("DistanceX", 0, 2, -1, 1, Q("12125.964636 mm")))
sketch7.addConstraint(Sketcher.Constraint("DistanceY", -1, 1, 0, 2, Q("27015.518376 mm")))
sketch7.setExpression("Constraints[9]", "Params.sketch7_width")
pocket4 = body.newObject("PartDesign::Pocket", "Pocket003")
pocket4.Profile = sketch7
pocket4.Type = "ThroughAll"
pocket4.Reversed = True

# Sketch on XY plane
sketch8 = body.newObject("Sketcher::SketchObject", "Sketch007")
sketch8.AttachmentSupport = (doc.getObject("XY_Plane"), [""])
sketch8.MapMode = "FlatFace"
sketch8.AttachmentOffset = App.Placement(App.Vector(0, 0, -4 * 25.4), App.Rotation())
sketch8.addGeometry(Part.LineSegment(App.Vector(-19251, 27752, 0), App.Vector(-19251, 20742, 0)), False)
sketch8.addGeometry(Part.LineSegment(App.Vector(-19251, 20742, 0), App.Vector(-20470, 20742, 0)), False)
sketch8.addGeometry(Part.LineSegment(App.Vector(-20470, 20742, 0), App.Vector(-20470, 27752, 0)), False)
sketch8.addGeometry(Part.LineSegment(App.Vector(-20470, 27752, 0), App.Vector(-19251, 27752, 0)), False)
sketch8.addConstraint(Sketcher.Constraint("Coincident", 0, 2, 1, 1))
sketch8.addConstraint(Sketcher.Constraint("Coincident", 1, 2, 2, 1))
sketch8.addConstraint(Sketcher.Constraint("Coincident", 2, 2, 3, 1))
sketch8.addConstraint(Sketcher.Constraint("Coincident", 3, 2, 0, 1))
sketch8.addConstraint(Sketcher.Constraint("Vertical", 0))
sketch8.addConstraint(Sketcher.Constraint("Horizontal", 1))
sketch8.addConstraint(Sketcher.Constraint("Vertical", 2))
sketch8.addConstraint(Sketcher.Constraint("Horizontal", 3))
sketch8.addConstraint(Sketcher.Constraint("DistanceX", 1, 2, 1, 1, Q("48 in")))
sketch8.addConstraint(Sketcher.Constraint("DistanceY", 0, 2, 0, 1, Q("276 in")))
sketch8.addConstraint(Sketcher.Constraint("DistanceX", 0, 2, -1, 1, Q("19250.664636 mm")))
sketch8.addConstraint(Sketcher.Constraint("DistanceY", -1, 1, 0, 2, Q("20741.718376 mm")))
sketch8.setExpression("Constraints[8]", "Params.sketch8_width")
sketch8.setExpression("Constraints[9]", "Params.sketch8_height")
pocket5 = body.newObject("PartDesign::Pocket", "Pocket004")
pocket5.Profile = sketch8
pocket5.setExpression("Length", "Params.pocket5_length")
pocket5.Reversed = True

doc.recompute()
